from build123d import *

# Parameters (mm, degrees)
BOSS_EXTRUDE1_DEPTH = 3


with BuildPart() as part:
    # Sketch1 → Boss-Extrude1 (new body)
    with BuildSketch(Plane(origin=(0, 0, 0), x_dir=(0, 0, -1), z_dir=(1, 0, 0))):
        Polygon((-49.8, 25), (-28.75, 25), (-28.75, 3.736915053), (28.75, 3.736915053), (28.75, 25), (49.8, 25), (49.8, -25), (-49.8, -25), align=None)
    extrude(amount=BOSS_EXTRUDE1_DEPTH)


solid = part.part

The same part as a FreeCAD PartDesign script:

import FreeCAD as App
import Part
import Sketcher
from FreeCAD import Vector

doc = App.newDocument("Part")
body = doc.addObject("PartDesign::Body", "Body")

# Sketch on YZ plane
sketch1 = body.newObject("Sketcher::SketchObject", "Sketch")
sketch1.AttachmentSupport = (doc.getObject("YZ_Plane"), [""])
sketch1.MapMode = "FlatFace"
sketch1.addGeometry(Part.LineSegment(Vector(25, 29, 0), Vector(25, 50, 0)), False)
sketch1.addGeometry(Part.LineSegment(Vector(25, 50, 0), Vector(-25, 50, 0)), False)
sketch1.addGeometry(Part.LineSegment(Vector(-25, 50, 0), Vector(-25, -50, 0)), False)
sketch1.addGeometry(Part.LineSegment(Vector(-25, -50, 0), Vector(25, -50, 0)), False)
sketch1.addGeometry(Part.LineSegment(Vector(25, -50, 0), Vector(25, -29, 0)), False)
sketch1.addGeometry(Part.LineSegment(Vector(25, -29, 0), Vector(4, -29, 0)), False)
sketch1.addGeometry(Part.LineSegment(Vector(4, -29, 0), Vector(4, 29, 0)), False)
sketch1.addGeometry(Part.LineSegment(Vector(4, 29, 0), Vector(25, 29, 0)), False)
sketch1.addConstraint(Sketcher.Constraint("Coincident", 0, 2, 1, 1))
sketch1.addConstraint(Sketcher.Constraint("Coincident", 1, 2, 2, 1))
sketch1.addConstraint(Sketcher.Constraint("Coincident", 2, 2, 3, 1))
sketch1.addConstraint(Sketcher.Constraint("Coincident", 3, 2, 4, 1))
sketch1.addConstraint(Sketcher.Constraint("Coincident", 4, 2, 5, 1))
sketch1.addConstraint(Sketcher.Constraint("Coincident", 5, 2, 6, 1))
sketch1.addConstraint(Sketcher.Constraint("Coincident", 6, 2, 7, 1))
sketch1.addConstraint(Sketcher.Constraint("Coincident", 7, 2, 0, 1))
sketch1.addConstraint(Sketcher.Constraint("Vertical", 0))
sketch1.addConstraint(Sketcher.Constraint("Horizontal", 1))
sketch1.addConstraint(Sketcher.Constraint("Vertical", 2))
sketch1.addConstraint(Sketcher.Constraint("Horizontal", 3))
sketch1.addConstraint(Sketcher.Constraint("Vertical", 4))
sketch1.addConstraint(Sketcher.Constraint("Horizontal", 5))
sketch1.addConstraint(Sketcher.Constraint("Vertical", 6))
sketch1.addConstraint(Sketcher.Constraint("Horizontal", 7))
sketch1.addConstraint(Sketcher.Constraint("Symmetric", 0, 2, 2, 2, -1, 1))
sketch1.addConstraint(Sketcher.Constraint("Symmetric", 4, 2, 7, 2, -1))
sketch1.addConstraint(Sketcher.Constraint("DistanceX", 1, 2, 1, 1, 50.0))
sketch1.addConstraint(Sketcher.Constraint("DistanceY", 2, 2, 2, 1, 99.6))
sketch1.addConstraint(Sketcher.Constraint("DistanceY", 6, 1, 6, 2, 57.5))
sketch1.addConstraint(Sketcher.Constraint("DistanceX", 5, 2, 5, 1, 21.263085))
pad1 = body.newObject("PartDesign::Pad", "Pad")
pad1.Profile = sketch1
pad1.Length = 3

doc.recompute()
